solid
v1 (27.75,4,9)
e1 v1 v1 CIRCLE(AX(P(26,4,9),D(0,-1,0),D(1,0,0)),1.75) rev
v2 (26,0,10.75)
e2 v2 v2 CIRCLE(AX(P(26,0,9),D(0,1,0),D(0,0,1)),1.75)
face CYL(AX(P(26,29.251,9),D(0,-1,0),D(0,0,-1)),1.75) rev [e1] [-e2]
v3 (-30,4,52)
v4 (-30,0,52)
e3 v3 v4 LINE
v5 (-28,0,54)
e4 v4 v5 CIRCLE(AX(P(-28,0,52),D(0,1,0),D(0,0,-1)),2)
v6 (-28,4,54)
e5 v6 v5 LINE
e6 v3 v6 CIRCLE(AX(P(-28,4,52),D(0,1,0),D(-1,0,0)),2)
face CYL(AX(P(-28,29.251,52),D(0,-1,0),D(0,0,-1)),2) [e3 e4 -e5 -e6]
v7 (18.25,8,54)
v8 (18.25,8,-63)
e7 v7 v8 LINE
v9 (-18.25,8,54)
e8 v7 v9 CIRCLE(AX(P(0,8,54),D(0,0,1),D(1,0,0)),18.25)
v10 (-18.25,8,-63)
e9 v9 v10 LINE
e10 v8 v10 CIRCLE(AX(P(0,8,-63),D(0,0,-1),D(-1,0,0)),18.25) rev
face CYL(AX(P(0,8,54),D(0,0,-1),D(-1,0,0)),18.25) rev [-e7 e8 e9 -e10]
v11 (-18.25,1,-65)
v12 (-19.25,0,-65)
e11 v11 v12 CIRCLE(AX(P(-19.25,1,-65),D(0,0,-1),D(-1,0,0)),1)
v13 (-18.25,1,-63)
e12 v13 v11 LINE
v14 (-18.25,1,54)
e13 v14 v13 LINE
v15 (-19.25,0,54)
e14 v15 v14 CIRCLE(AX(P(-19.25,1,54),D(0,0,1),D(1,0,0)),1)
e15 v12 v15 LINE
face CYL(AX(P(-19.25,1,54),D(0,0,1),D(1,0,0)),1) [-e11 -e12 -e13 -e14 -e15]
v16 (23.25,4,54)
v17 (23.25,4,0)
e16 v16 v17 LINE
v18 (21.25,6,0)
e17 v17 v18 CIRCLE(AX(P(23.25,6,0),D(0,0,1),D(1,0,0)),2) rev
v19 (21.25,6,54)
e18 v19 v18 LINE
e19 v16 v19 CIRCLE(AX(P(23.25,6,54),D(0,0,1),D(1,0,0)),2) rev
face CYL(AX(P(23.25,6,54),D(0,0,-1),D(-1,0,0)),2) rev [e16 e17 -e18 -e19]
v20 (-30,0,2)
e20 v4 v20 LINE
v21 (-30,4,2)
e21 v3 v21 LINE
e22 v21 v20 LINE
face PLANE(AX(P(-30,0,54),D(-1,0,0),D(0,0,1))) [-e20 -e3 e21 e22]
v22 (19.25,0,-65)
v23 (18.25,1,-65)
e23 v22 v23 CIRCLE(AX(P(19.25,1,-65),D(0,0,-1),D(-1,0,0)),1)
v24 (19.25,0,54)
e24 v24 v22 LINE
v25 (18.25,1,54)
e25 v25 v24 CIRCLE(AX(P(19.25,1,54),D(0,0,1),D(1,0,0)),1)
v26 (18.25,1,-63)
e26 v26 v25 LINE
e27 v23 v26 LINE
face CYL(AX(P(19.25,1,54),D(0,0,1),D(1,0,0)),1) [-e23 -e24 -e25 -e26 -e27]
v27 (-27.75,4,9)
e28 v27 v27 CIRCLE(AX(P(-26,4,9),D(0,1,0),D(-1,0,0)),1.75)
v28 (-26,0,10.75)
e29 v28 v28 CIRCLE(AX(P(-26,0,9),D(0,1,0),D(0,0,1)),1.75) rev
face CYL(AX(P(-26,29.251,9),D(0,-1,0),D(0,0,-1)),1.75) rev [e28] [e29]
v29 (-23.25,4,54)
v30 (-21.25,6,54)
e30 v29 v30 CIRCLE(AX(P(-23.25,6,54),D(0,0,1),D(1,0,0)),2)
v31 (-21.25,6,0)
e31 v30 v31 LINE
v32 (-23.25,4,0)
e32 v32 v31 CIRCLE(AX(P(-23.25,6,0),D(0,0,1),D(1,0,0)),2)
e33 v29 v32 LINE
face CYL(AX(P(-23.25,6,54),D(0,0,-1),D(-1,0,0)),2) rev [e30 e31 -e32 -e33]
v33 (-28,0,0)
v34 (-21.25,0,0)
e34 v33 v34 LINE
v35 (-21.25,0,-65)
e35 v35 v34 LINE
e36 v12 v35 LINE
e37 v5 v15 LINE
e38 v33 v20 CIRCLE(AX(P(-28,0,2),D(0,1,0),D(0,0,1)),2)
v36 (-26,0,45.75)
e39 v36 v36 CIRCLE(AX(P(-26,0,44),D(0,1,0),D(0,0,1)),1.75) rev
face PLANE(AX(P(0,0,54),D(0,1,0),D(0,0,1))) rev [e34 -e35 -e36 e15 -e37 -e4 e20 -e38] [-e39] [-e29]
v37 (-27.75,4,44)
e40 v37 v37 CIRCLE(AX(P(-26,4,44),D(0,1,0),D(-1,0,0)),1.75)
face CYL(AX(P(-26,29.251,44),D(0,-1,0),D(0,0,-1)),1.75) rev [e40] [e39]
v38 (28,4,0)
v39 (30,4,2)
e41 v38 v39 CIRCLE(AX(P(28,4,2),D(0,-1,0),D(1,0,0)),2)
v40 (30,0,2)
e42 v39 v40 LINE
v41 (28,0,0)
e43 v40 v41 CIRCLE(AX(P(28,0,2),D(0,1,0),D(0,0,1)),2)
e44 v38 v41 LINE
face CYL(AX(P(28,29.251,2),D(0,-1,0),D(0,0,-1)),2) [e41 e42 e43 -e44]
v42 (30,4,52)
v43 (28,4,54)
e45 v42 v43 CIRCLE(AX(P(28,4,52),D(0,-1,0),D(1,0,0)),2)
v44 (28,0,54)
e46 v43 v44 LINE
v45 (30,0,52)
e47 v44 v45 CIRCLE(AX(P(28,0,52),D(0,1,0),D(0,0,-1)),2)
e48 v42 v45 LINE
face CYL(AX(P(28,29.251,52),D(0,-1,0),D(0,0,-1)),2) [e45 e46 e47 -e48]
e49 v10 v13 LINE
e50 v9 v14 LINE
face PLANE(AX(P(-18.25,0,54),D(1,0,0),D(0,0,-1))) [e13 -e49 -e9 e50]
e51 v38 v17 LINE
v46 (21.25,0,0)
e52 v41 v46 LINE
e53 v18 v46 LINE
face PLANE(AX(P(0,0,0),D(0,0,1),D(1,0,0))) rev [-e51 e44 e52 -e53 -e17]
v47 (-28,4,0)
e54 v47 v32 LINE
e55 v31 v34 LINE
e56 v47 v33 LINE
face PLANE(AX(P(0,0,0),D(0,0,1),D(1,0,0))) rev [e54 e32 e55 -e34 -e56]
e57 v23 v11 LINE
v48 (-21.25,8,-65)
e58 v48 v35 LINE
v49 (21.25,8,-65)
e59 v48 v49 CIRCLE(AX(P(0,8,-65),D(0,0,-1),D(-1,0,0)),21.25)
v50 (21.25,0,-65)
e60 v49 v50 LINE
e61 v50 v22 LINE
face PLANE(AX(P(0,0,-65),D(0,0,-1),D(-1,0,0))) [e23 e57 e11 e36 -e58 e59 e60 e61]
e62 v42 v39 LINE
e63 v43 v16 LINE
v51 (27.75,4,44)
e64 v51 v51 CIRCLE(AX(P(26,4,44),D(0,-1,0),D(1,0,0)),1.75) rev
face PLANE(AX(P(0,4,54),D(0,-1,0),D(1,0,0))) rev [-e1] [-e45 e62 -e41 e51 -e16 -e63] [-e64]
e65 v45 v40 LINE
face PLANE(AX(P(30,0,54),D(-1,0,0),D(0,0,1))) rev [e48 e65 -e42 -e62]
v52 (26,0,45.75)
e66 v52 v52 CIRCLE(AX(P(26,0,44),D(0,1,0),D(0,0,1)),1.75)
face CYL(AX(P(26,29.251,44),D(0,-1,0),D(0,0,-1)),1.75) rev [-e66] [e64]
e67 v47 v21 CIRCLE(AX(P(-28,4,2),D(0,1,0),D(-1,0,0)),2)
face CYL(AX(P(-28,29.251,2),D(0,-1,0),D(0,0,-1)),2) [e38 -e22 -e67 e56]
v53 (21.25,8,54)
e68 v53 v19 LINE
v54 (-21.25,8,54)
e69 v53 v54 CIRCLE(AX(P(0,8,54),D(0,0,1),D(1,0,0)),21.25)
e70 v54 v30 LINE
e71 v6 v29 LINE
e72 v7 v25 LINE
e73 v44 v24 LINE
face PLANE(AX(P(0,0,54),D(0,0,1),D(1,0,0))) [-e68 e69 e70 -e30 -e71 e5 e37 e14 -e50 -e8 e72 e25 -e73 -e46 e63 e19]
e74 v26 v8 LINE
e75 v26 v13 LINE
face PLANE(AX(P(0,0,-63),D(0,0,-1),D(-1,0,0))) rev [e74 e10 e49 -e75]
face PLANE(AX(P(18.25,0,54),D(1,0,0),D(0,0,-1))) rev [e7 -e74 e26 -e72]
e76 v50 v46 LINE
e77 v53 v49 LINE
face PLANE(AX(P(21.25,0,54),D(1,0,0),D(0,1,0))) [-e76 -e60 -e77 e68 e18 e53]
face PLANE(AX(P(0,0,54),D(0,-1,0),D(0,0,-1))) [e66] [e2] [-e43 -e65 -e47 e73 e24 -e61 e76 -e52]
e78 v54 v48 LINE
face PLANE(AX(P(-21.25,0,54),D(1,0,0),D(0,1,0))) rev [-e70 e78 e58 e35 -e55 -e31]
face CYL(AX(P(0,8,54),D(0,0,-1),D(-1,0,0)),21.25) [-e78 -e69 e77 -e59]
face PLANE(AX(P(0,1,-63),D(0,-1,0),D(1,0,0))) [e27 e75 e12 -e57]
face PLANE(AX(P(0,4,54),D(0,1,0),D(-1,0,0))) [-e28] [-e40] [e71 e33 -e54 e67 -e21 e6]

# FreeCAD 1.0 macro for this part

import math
import FreeCAD as App
import Part
import Sketcher
from FreeCAD import Vector
Q = App.Units.Quantity


def edges_at(feature, points):
    """Names of the edges that pass closest to the given points."""
    edges = feature.Shape.Edges
    near = lambda p: min(range(len(edges)), key=lambda i: edges[i].distToShape(Part.Vertex(*p))[0])
    return sorted({f"Edge{near(p) + 1}" for p in points})


def add_polygon(sketch, points):
    """Adds a closed chain of lines whose ends are joined by coincident constraints."""
    first, n = sketch.GeometryCount, len(points)
    for a, b in zip(points, points[1:] + points[:1]):
        sketch.addGeometry(Part.LineSegment(App.Vector(*a, 0), App.Vector(*b, 0)), False)
    for i in range(n):
        sketch.addConstraint(Sketcher.Constraint("Coincident", first + i, 2, first + (i + 1) % n, 1))

doc = App.newDocument("Part")
body = doc.addObject("PartDesign::Body", "Body")

# Sketch on XY plane
sketch1 = body.newObject("Sketcher::SketchObject", "Sketch")
sketch1.AttachmentSupport = (doc.getObject("XY_Plane"), [""])
sketch1.MapMode = "FlatFace"
sketch1.addGeometry([
    Part.LineSegment(Vector(-30, 4, 0), Vector(-30, 0, 0)),  # 0
    Part.LineSegment(Vector(-30, 0, 0), Vector(-18.2, 0, 0)),  # 1
    Part.LineSegment(Vector(-18.2, 0, 0), Vector(-18.2, 8, 0)),  # 2
    Part.ArcOfCircle(Part.Circle(Vector(0, 8, 0), Vector(0, 0, 1), 18.2), math.radians(0), math.radians(180)),  # 3
    Part.LineSegment(Vector(18.2, 8, 0), Vector(18.2, 0, 0)),  # 4
    Part.LineSegment(Vector(18.2, 0, 0), Vector(30, 0, 0)),  # 5
    Part.LineSegment(Vector(30, 0, 0), Vector(30, 4, 0)),  # 6
    Part.LineSegment(Vector(30, 4, 0), Vector(23.2, 4, 0)),  # 7
    Part.ArcOfCircle(Part.Circle(Vector(23.3, 6, 0), Vector(0, 0, 1), 2), math.radians(-180), math.radians(-90)),  # 8
    Part.LineSegment(Vector(21.2, 6, 0), Vector(21.2, 8, 0)),  # 9
    Part.ArcOfCircle(Part.Circle(Vector(0, 8, 0), Vector(0, 0, 1), 21.2), math.radians(0), math.radians(180)),  # 10
    Part.LineSegment(Vector(-21.2, 8, 0), Vector(-21.2, 6, 0)),  # 11
    Part.ArcOfCircle(Part.Circle(Vector(-23.3, 6, 0), Vector(0, 0, 1), 2), math.radians(-90), math.radians(0)),  # 12
    Part.LineSegment(Vector(-23.2, 4, 0), Vector(-30, 4, 0)),  # 13
], False)
sketch1.addConstraint([
    Sketcher.Constraint("Coincident", 0, 2, 1, 1),
    Sketcher.Constraint("Coincident", 1, 2, 2, 1),
    Sketcher.Constraint("Tangent", 2, 2, 3, 2),
    Sketcher.Constraint("Tangent", 3, 1, 4, 1),
    Sketcher.Constraint("Coincident", 4, 2, 5, 1),
    Sketcher.Constraint("Coincident", 5, 2, 6, 1),
    Sketcher.Constraint("Coincident", 6, 2, 7, 1),
    Sketcher.Constraint("Tangent", 7, 2, 8, 2),
    Sketcher.Constraint("Tangent", 8, 1, 9, 1),
    Sketcher.Constraint("Tangent", 9, 2, 10, 1),
    Sketcher.Constraint("Tangent", 10, 2, 11, 1),
    Sketcher.Constraint("Tangent", 11, 2, 12, 2),
    Sketcher.Constraint("Tangent", 12, 1, 13, 1),
    Sketcher.Constraint("Coincident", 13, 2, 0, 1),
    Sketcher.Constraint("Vertical", 0),
    Sketcher.Constraint("Horizontal", 1),
    Sketcher.Constraint("Vertical", 2),
    Sketcher.Constraint("Vertical", 4),
    Sketcher.Constraint("Horizontal", 5),
    Sketcher.Constraint("Vertical", 6),
    Sketcher.Constraint("Horizontal", 7),
    Sketcher.Constraint("Vertical", 9),
    Sketcher.Constraint("Vertical", 11),
    Sketcher.Constraint("Horizontal", 13),
    Sketcher.Constraint("Coincident", 10, 3, 3, 3),
    Sketcher.Constraint("Equal", 8, 12),
    Sketcher.Constraint("Symmetric", 1, 2, 4, 2, -1, 1),
    Sketcher.Constraint("Symmetric", 0, 2, 5, 2, -2),
    Sketcher.Constraint("Horizontal", 8, 3, 12, 3),
    Sketcher.Constraint("Radius", 8, Q("2 mm")),
    Sketcher.Constraint("DistanceY", 0, 2, 0, 1, Q("4 mm")),
    Sketcher.Constraint("DistanceY", 2, 1, 2, 2, Q("8 mm")),
    Sketcher.Constraint("Radius", 3, Q("18.25 mm")),
    Sketcher.Constraint("Radius", 10, Q("21.25 mm")),
    Sketcher.Constraint("DistanceX", 0, 2, -1, 1, Q("30 mm")),
])
pad1 = body.newObject("PartDesign::Pad", "Pad")
pad1.Profile = sketch1
pad1.Length = 54

# Sketch on XZ plane
sketch2 = body.newObject("Sketcher::SketchObject", "Sketch001")
sketch2.AttachmentSupport = (doc.getObject("XZ_Plane"), [""])
sketch2.MapMode = "FlatFace"
add_polygon(sketch2, [(-39.6, -9.6), (-39.6, 63.6), (39.6, 63.6), (39.6, -9.6)])  # lines 0-3
sketch2.addGeometry(Part.LineSegment(Vector(-30, 52, 0), Vector(-30, 2, 0)), False)  # 4
sketch2.addGeometry(Part.ArcOfCircle(Part.Circle(Vector(-28, 2, 0), Vector(0, 0, 1), 2), math.radians(-180), math.radians(-90)), False)  # 5
sketch2.addGeometry(Part.LineSegment(Vector(-28, 0, 0), Vector(28, 0, 0)), False)  # 6
sketch2.addGeometry(Part.ArcOfCircle(Part.Circle(Vector(28, 2, 0), Vector(0, 0, 1), 2), math.radians(-90), math.radians(0)), False)  # 7
sketch2.addGeometry(Part.LineSegment(Vector(30, 2, 0), Vector(30, 52, 0)), False)  # 8
sketch2.addGeometry(Part.ArcOfCircle(Part.Circle(Vector(28, 52, 0), Vector(0, 0, 1), 2), math.radians(0), math.radians(90)), False)  # 9
sketch2.addGeometry(Part.LineSegment(Vector(28, 54, 0), Vector(-28, 54, 0)), False)  # 10
sketch2.addGeometry(Part.ArcOfCircle(Part.Circle(Vector(-28, 52, 0), Vector(0, 0, 1), 2), math.radians(90), math.radians(180)), False)  # 11
sketch2.addGeometry(Part.Circle(Vector(-26, 9, 0), Vector(0, 0, 1), 1.8), False)  # 12
sketch2.addGeometry(Part.Circle(Vector(26, 9, 0), Vector(0, 0, 1), 1.8), False)  # 13
sketch2.addGeometry(Part.Circle(Vector(26, 44, 0), Vector(0, 0, 1), 1.8), False)  # 14
sketch2.addGeometry(Part.Circle(Vector(-26, 44, 0), Vector(0, 0, 1), 1.8), False)  # 15
sketch2.addConstraint([
    Sketcher.Constraint("Tangent", 4, 2, 5, 1),
    Sketcher.Constraint("Tangent", 5, 2, 6, 1),
    Sketcher.Constraint("Tangent", 6, 2, 7, 1),
    Sketcher.Constraint("Tangent", 7, 2, 8, 1),
    Sketcher.Constraint("Tangent", 8, 2, 9, 1),
    Sketcher.Constraint("Tangent", 9, 2, 10, 1),
    Sketcher.Constraint("Tangent", 10, 2, 11, 1),
    Sketcher.Constraint("Tangent", 11, 2, 4, 1),
    Sketcher.Constraint("Vertical", 0),
    Sketcher.Constraint("Horizontal", 1),
    Sketcher.Constraint("Vertical", 2),
    Sketcher.Constraint("Horizontal", 3),
    Sketcher.Constraint("Vertical", 4),
    Sketcher.Constraint("Horizontal", 6),
    Sketcher.Constraint("Vertical", 8),
    Sketcher.Constraint("Horizontal", 10),
    Sketcher.Constraint("Equal", 5, 7),
    Sketcher.Constraint("Equal", 7, 9),
    Sketcher.Constraint("Equal", 9, 11),
    Sketcher.Constraint("Equal", 12, 13),
    Sketcher.Constraint("Equal", 13, 14),
    Sketcher.Constraint("Equal", 14, 15),
    Sketcher.Constraint("Symmetric", 5, 2, 6, 2, -1, 1),
    Sketcher.Constraint("Symmetric", 12, 3, 13, 3, -2),
    Sketcher.Constraint("Symmetric", 14, 3, 15, 3, -2),
    Sketcher.Constraint("Vertical", 13, 3, 14, 3),
    Sketcher.Constraint("Radius", 5, Q("2 mm")),
    Sketcher.Constraint("Diameter", 12, Q("3.5 mm")),
    Sketcher.Constraint("DistanceX", 6, 1, 6, 2, Q("56 mm")),
    Sketcher.Constraint("DistanceY", 4, 2, 4, 1, Q("50 mm")),
    Sketcher.Constraint("DistanceX", 12, 3, -1, 1, Q("26 mm")),
    Sketcher.Constraint("DistanceY", -1, 1, 12, 3, Q("9 mm")),
    Sketcher.Constraint("DistanceY", -1, 1, 14, 3, Q("44 mm")),
    Sketcher.Constraint("DistanceX", 1, 1, 1, 2, Q("79.172 mm")),
    Sketcher.Constraint("DistanceY", 0, 1, 0, 2, Q("73.172 mm")),
    Sketcher.Constraint("DistanceX", 0, 2, -1, 1, Q("39.586 mm")),
    Sketcher.Constraint("DistanceY", -1, 1, 0, 2, Q("63.586 mm")),
])
pocket1 = body.newObject("PartDesign::Pocket", "Pocket")
pocket1.Profile = sketch2
pocket1.Length = 4
doc.recompute()

fillet = body.newObject("PartDesign::Fillet", "Fillet")
fillet.Base = (pocket1, edges_at(pocket1, [(18.25, 0, 27), (-18.25, 0, 27)]))
fillet.Radius = 1

# Sketch on XY plane
sketch3 = body.newObject("Sketcher::SketchObject", "Sketch002")
sketch3.AttachmentSupport = (doc.getObject("XY_Plane"), [""])
sketch3.MapMode = "FlatFace"
sketch3.addGeometry([
    Part.ArcOfCircle(Part.Circle(Vector(0, 8, 0), Vector(0, 0, 1), 18.2), math.radians(0), math.radians(180)),  # 0
    Part.LineSegment(Vector(-18.2, 8, 0), Vector(-18.2, 1, 0)),  # 1
    Part.ArcOfCircle(Part.Circle(Vector(-19.3, 1, 0), Vector(0, 0, 1), 1), math.radians(-90), math.radians(0)),  # 2
    Part.LineSegment(Vector(-19.2, 0, 0), Vector(-21.2, 0, 0)),  # 3
    Part.LineSegment(Vector(-21.2, 0, 0), Vector(-21.2, 8, 0)),  # 4
    Part.ArcOfCircle(Part.Circle(Vector(0, 8, 0), Vector(0, 0, 1), 21.2), math.radians(0), math.radians(180)),  # 5
    Part.LineSegment(Vector(21.2, 8, 0), Vector(21.2, 0, 0)),  # 6
    Part.LineSegment(Vector(21.2, 0, 0), Vector(19.2, 0, 0)),  # 7
    Part.ArcOfCircle(Part.Circle(Vector(19.3, 1, 0), Vector(0, 0, 1), 1), math.radians(-180), math.radians(-90)),  # 8
    Part.LineSegment(Vector(18.2, 1, 0), Vector(18.2, 8, 0)),  # 9
], False)
sketch3.addConstraint([
    Sketcher.Constraint("Tangent", 0, 2, 1, 1),
    Sketcher.Constraint("Tangent", 1, 2, 2, 2),
    Sketcher.Constraint("Tangent", 2, 1, 3, 1),
    Sketcher.Constraint("Coincident", 3, 2, 4, 1),
    Sketcher.Constraint("Tangent", 4, 2, 5, 2),
    Sketcher.Constraint("Tangent", 5, 1, 6, 1),
    Sketcher.Constraint("Coincident", 6, 2, 7, 1),
    Sketcher.Constraint("Tangent", 7, 2, 8, 2),
    Sketcher.Constraint("Tangent", 8, 1, 9, 1),
    Sketcher.Constraint("Tangent", 9, 2, 0, 1),
    Sketcher.Constraint("Vertical", 1),
    Sketcher.Constraint("Horizontal", 3),
    Sketcher.Constraint("Vertical", 4),
    Sketcher.Constraint("Vertical", 6),
    Sketcher.Constraint("Horizontal", 7),
    Sketcher.Constraint("Vertical", 9),
    Sketcher.Constraint("Coincident", 5, 3, 0, 3),
    Sketcher.Constraint("Equal", 2, 8),
    Sketcher.Constraint("Symmetric", 3, 2, 6, 2, -1, 1),
    Sketcher.Constraint("PointOnObject", 2, 1, -1),
    Sketcher.Constraint("Radius", 2, Q("1 mm")),
    Sketcher.Constraint("DistanceX", 3, 2, 3, 1, Q("2 mm")),
    Sketcher.Constraint("DistanceY", 1, 2, 1, 1, Q("7 mm")),
    Sketcher.Constraint("Radius", 0, Q("18.25 mm")),
])
pad2 = body.newObject("PartDesign::Pad", "Pad001")
pad2.Profile = sketch3
pad2.Length = 65
pad2.Reversed = True

# Sketch on XY plane
sketch4 = body.newObject("Sketcher::SketchObject", "Sketch003")
sketch4.AttachmentSupport = (doc.getObject("XY_Plane"), [""])
sketch4.MapMode = "FlatFace"
sketch4.AttachmentOffset = App.Placement(Vector(0, 0, -65), App.Rotation())
sketch4.addGeometry([
    Part.LineSegment(Vector(18, 1, 0), Vector(-18, 1, 0)),
    Part.LineSegment(Vector(-18, 1, 0), Vector(-18, 8, 0)),
    Part.ArcOfCircle(Part.Circle(Vector(0, 8, 0), Vector(0, 0, 1), 18), math.radians(0), math.radians(180)),
    Part.LineSegment(Vector(18, 8, 0), Vector(18, 1, 0)),
], False)
sketch4.addConstraint([
    Sketcher.Constraint("Coincident", 0, 2, 1, 1),
    Sketcher.Constraint("Tangent", 1, 2, 2, 2),
    Sketcher.Constraint("Tangent", 2, 1, 3, 1),
    Sketcher.Constraint("Coincident", 3, 2, 0, 1),
    Sketcher.Constraint("Horizontal", 0),
    Sketcher.Constraint("Vertical", 1),
    Sketcher.Constraint("Vertical", 3),
    Sketcher.Constraint("PointOnObject", 2, 3, -2),
    Sketcher.Constraint("DistanceY", 1, 1, 1, 2, Q("7 mm")),
    Sketcher.Constraint("Radius", 2, Q("18.25 mm")),
    Sketcher.Constraint("DistanceY", -1, 1, 2, 3, Q("8 mm")),
])
pad3 = body.newObject("PartDesign::Pad", "Pad002")
pad3.Profile = sketch4
pad3.Length = 2

doc.recompute()
